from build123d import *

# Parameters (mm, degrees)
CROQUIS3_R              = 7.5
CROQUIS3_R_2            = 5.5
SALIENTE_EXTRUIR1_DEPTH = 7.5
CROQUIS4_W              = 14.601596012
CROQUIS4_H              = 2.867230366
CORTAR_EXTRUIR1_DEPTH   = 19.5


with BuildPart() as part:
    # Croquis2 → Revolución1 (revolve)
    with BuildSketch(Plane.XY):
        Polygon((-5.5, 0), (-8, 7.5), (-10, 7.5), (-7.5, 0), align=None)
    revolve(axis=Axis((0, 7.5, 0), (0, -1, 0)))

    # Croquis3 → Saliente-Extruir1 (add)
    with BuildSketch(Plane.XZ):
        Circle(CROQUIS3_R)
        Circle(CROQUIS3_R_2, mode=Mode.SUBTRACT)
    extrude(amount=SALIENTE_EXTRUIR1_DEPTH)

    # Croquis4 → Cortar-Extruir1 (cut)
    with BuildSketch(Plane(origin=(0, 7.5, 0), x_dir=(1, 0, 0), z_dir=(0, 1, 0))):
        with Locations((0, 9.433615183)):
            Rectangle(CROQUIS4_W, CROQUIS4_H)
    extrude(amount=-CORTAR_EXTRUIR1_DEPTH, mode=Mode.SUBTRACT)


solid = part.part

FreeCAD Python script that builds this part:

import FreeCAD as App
import Part
import Sketcher

V = App.Vector
Q = App.Units.Quantity

doc = App.newDocument("Part")
body = doc.addObject("PartDesign::Body", "Body")

sketch1 = body.newObject("Sketcher::SketchObject", "Sketch")
sketch1.AttachmentSupport = (doc.getObject("XY_Plane"), [""])
sketch1.MapMode = "FlatFace"
sketch1.addGeometry(Part.LineSegment(V(-5.5, 0, 0), V(-8, 7.5, 0)), False)
sketch1.addGeometry(Part.LineSegment(V(-8, 7.5, 0), V(-10, 7.5, 0)), False)
sketch1.addGeometry(Part.LineSegment(V(-10, 7.5, 0), V(-7.5, 0, 0)), False)
sketch1.addGeometry(Part.LineSegment(V(-7.5, 0, 0), V(-5.5, 0, 0)), False)
sketch1.addConstraint(Sketcher.Constraint("Coincident", 0, 2, 1, 1))
sketch1.addConstraint(Sketcher.Constraint("Coincident", 1, 2, 2, 1))
sketch1.addConstraint(Sketcher.Constraint("Coincident", 2, 2, 3, 1))
sketch1.addConstraint(Sketcher.Constraint("Coincident", 3, 2, 0, 1))
sketch1.addConstraint(Sketcher.Constraint("Horizontal", 1))
sketch1.addConstraint(Sketcher.Constraint("Horizontal", 3))
sketch1.addConstraint(Sketcher.Constraint("PointOnObject", 2, 2, -1))
sketch1.addConstraint(Sketcher.Constraint("Parallel", 0, 2))
sketch1.addConstraint(Sketcher.Constraint("DistanceX", 1, 2, 1, 1, Q("2 mm")))
sketch1.addConstraint(Sketcher.Constraint("DistanceX", 0, 2, -1, 1, Q("8 mm")))
sketch1.addConstraint(Sketcher.Constraint("DistanceY", -1, 1, 0, 2, Q("7.5 mm")))
sketch1.addConstraint(Sketcher.Constraint("DistanceX", 2, 2, -1, 1, Q("7.5 mm")))
revolution = body.newObject("PartDesign::Revolution", "Revolution")
revolution.Profile = sketch1
revolution.ReferenceAxis = (sketch1, ["V_Axis"])
revolution.Angle = 360

sketch2 = body.newObject("Sketcher::SketchObject", "Sketch001")
sketch2.AttachmentSupport = (doc.getObject("XZ_Plane"), [""])
sketch2.MapMode = "FlatFace"
sketch2.addGeometry(Part.Circle(V(0, 0, 0), V(0, 0, 1), 7.5), False)
sketch2.addGeometry(Part.Circle(V(0, 0, 0), V(0, 0, 1), 5.5), False)
sketch2.addConstraint(Sketcher.Constraint("Coincident", 0, 3, -1, 1))
sketch2.addConstraint(Sketcher.Constraint("Coincident", 1, 3, -1, 1))
sketch2.addConstraint(Sketcher.Constraint("Diameter", 0, Q("15 mm")))
sketch2.addConstraint(Sketcher.Constraint("Diameter", 1, Q("11 mm")))
pad1 = body.newObject("PartDesign::Pad", "Pad")
pad1.Profile = sketch2
pad1.Length = 7.5

sketch3 = body.newObject("Sketcher::SketchObject", "Sketch002")
sketch3.AttachmentSupport = (doc.getObject("XZ_Plane"), [""])
sketch3.MapMode = "FlatFace"
sketch3.AttachmentOffset = App.Placement(V(0, 0, -7.5), App.Rotation())
sketch3.addGeometry(Part.LineSegment(V(-7.300798, -10.86723, 0), V(-7.300798, -8, 0)), False)
sketch3.addGeometry(Part.LineSegment(V(-7.300798, -8, 0), V(7.300798, -8, 0)), False)
sketch3.addGeometry(Part.LineSegment(V(7.300798, -8, 0), V(7.300798, -10.86723, 0)), False)
sketch3.addGeometry(Part.LineSegment(V(7.300798, -10.86723, 0), V(-7.300798, -10.86723, 0)), False)
sketch3.addConstraint(Sketcher.Constraint("Coincident", 0, 2, 1, 1))
sketch3.addConstraint(Sketcher.Constraint("Coincident", 1, 2, 2, 1))
sketch3.addConstraint(Sketcher.Constraint("Coincident", 2, 2, 3, 1))
sketch3.addConstraint(Sketcher.Constraint("Coincident", 3, 2, 0, 1))
sketch3.addConstraint(Sketcher.Constraint("Vertical", 0))
sketch3.addConstraint(Sketcher.Constraint("Horizontal", 1))
sketch3.addConstraint(Sketcher.Constraint("Vertical", 2))
sketch3.addConstraint(Sketcher.Constraint("Horizontal", 3))
sketch3.addConstraint(Sketcher.Constraint("DistanceY", 0, 2, -1, 1, Q("8 mm")))
sketch3.addConstraint(Sketcher.Constraint("DistanceY", 0, 1, 0, 2, Q("2.86723 mm")))
sketch3.addConstraint(Sketcher.Constraint("DistanceX", 0, 2, -1, 1, Q("7.300798 mm")))
sketch3.addConstraint(Sketcher.Constraint("DistanceX", -1, 1, 1, 2, Q("7.300798 mm")))
pocket1 = body.newObject("PartDesign::Pocket", "Pocket")
pocket1.Profile = sketch3
pocket1.Length = 19.5
pocket1.Reversed = True

doc.recompute()
